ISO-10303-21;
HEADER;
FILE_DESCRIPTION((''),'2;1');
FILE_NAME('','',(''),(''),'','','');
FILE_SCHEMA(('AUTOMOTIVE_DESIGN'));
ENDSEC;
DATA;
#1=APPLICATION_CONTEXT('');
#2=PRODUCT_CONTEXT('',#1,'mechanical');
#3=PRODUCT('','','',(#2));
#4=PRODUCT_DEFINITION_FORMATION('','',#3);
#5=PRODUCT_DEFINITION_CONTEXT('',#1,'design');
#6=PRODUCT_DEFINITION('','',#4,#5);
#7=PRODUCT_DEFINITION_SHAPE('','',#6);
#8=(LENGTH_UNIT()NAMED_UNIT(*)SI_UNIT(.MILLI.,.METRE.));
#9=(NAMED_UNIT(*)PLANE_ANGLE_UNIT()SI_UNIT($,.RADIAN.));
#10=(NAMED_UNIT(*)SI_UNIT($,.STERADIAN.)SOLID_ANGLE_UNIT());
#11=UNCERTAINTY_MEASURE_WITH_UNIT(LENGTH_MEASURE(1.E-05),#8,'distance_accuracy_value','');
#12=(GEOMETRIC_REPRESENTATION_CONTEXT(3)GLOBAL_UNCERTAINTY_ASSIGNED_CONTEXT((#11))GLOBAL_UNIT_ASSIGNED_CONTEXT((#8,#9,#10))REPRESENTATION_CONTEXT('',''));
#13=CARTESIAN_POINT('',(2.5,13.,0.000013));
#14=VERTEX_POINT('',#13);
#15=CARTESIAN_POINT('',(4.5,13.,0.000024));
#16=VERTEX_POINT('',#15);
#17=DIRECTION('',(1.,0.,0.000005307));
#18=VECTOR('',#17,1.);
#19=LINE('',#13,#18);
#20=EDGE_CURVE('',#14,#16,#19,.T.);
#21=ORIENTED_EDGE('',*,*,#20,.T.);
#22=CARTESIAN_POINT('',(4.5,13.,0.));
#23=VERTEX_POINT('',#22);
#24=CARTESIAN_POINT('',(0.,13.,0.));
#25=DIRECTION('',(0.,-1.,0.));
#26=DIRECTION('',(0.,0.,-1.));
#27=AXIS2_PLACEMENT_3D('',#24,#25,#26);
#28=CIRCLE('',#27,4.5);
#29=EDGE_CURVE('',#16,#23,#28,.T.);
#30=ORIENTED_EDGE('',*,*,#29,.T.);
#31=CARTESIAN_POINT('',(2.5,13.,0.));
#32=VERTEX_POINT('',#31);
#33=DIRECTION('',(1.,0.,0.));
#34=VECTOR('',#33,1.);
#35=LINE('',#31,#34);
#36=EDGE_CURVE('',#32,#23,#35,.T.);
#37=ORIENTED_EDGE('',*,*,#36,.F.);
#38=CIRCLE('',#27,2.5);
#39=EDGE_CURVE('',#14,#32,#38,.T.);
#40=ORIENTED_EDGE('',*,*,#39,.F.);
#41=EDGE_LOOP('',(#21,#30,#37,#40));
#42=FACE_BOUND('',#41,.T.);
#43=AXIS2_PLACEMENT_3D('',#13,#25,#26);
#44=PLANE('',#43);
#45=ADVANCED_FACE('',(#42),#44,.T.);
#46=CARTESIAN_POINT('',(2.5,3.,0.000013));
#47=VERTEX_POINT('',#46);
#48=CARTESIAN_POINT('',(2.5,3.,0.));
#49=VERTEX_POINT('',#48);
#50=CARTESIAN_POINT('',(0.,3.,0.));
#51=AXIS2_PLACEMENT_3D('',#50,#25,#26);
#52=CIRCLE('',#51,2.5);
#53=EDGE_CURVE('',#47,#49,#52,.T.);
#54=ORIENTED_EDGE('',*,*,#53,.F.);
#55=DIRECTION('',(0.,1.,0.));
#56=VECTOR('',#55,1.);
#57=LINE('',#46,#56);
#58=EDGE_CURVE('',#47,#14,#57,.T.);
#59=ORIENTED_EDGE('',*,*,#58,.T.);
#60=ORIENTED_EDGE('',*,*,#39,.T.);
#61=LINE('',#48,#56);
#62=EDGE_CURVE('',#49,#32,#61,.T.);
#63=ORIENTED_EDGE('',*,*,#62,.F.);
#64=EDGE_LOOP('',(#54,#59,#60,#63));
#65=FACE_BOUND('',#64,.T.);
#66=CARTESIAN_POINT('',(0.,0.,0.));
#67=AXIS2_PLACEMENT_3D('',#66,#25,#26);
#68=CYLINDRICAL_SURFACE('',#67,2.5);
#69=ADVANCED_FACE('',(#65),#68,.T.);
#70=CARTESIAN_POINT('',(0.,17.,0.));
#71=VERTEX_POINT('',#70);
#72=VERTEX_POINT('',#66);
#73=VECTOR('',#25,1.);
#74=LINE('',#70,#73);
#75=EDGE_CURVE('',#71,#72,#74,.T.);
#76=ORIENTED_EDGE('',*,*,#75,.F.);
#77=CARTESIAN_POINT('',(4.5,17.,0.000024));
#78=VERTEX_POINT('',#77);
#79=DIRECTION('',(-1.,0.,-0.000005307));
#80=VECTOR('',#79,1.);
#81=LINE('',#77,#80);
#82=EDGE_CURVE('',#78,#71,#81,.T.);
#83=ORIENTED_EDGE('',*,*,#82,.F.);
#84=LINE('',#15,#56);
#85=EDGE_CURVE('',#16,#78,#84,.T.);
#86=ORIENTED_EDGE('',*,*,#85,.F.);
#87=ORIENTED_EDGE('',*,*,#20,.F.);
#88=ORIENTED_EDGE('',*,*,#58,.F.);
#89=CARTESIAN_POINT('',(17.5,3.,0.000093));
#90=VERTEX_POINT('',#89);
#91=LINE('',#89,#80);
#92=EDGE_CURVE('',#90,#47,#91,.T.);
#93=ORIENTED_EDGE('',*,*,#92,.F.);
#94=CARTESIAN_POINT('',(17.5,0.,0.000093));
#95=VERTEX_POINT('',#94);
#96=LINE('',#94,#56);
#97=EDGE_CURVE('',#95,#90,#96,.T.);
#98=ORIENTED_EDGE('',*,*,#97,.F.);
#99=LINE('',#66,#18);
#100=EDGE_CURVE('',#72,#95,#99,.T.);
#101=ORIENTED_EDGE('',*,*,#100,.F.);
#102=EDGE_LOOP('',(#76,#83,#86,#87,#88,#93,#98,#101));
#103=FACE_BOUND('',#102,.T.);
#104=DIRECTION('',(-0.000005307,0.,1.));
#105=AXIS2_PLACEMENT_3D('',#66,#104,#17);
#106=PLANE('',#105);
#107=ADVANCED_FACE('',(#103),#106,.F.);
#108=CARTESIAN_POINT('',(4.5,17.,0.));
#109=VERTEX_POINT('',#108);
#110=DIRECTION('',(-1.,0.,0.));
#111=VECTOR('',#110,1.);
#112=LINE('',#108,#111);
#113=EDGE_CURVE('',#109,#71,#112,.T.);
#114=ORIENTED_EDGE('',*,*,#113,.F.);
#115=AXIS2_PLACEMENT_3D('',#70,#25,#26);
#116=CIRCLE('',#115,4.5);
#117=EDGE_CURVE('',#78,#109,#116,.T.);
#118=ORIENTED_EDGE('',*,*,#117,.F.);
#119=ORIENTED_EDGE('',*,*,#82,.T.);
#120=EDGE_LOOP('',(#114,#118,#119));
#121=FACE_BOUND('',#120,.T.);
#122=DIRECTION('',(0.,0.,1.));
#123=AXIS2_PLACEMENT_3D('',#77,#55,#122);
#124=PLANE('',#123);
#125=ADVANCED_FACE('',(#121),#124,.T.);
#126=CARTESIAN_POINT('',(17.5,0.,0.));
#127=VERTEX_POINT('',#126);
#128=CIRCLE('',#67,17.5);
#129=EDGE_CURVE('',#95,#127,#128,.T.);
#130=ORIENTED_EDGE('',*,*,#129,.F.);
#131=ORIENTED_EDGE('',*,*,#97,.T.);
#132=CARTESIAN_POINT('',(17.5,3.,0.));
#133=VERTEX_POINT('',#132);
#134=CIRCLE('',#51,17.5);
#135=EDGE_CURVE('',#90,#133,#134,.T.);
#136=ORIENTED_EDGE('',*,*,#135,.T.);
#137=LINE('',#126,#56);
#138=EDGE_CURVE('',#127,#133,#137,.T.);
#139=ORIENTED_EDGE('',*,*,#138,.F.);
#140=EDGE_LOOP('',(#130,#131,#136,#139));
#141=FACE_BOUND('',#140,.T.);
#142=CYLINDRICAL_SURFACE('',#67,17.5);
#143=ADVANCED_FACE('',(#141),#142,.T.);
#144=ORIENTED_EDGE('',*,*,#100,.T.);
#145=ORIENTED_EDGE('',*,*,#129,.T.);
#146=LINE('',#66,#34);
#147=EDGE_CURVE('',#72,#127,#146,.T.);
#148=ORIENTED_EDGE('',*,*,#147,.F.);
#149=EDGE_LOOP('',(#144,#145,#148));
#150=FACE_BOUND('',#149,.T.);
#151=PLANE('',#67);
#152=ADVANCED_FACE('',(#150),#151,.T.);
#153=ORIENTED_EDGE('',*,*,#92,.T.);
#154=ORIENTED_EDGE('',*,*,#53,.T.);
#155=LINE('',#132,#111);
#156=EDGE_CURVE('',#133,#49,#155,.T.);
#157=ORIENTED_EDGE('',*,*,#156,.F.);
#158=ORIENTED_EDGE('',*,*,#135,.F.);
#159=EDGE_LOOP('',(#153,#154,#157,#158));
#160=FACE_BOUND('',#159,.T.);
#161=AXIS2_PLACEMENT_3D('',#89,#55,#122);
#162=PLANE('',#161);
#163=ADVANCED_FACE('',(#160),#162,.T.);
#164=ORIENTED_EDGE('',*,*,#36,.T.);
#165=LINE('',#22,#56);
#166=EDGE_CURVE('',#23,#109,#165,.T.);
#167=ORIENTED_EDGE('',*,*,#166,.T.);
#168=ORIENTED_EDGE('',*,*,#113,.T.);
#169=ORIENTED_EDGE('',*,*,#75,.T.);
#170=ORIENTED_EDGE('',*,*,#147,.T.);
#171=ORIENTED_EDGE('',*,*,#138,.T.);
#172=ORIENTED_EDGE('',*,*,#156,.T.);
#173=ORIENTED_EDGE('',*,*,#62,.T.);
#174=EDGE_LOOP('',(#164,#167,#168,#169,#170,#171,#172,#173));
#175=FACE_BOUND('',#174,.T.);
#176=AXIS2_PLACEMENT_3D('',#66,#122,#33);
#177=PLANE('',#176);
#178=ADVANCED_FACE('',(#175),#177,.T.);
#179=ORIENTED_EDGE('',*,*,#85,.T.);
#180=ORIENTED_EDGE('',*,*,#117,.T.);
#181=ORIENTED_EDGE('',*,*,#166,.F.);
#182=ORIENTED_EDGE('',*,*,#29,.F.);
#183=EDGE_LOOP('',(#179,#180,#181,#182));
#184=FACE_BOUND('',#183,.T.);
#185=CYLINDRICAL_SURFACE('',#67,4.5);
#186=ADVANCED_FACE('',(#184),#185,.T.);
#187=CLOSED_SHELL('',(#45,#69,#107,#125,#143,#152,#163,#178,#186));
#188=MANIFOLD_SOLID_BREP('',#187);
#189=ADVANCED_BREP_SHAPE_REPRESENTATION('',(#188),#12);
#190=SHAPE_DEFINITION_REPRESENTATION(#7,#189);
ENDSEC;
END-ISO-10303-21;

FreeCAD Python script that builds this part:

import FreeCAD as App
import Part
import Sketcher
from FreeCAD import Vector
Q = App.Units.Quantity

doc = App.newDocument("Part")
params = doc.addObject("Spreadsheet::Sheet", "Params")
for row, (alias, value) in enumerate([
    ("sketch1_width", "15 mm"),
    ("sketch1_width2", "2 mm"),
    ("sketch1_height", "3 mm"),
    ("sketch1_height2", "10 mm"),
    ("sketch1_height3", "4 mm"),
    ("revolution_angle", "359.999696 deg"),
], start=1):
    params.set(f"A{row}", alias)
    params.set(f"B{row}", "=" + value)
    params.setAlias(f"B{row}", alias)

body = doc.addObject("PartDesign::Body", "Body")

sketch1 = body.newObject("Sketcher::SketchObject", "Sketch")
sketch1.AttachmentSupport = (doc.getObject("XY_Plane"), [""])
sketch1.MapMode = "FlatFace"
sketch1.addGeometry([
    Part.LineSegment(Vector(0, 0, 0), Vector(17.5, 0, 0)),
    Part.LineSegment(Vector(17.5, 0, 0), Vector(17.5, 3, 0)),
    Part.LineSegment(Vector(17.5, 3, 0), Vector(2.5, 3, 0)),
    Part.LineSegment(Vector(2.5, 3, 0), Vector(2.5, 13, 0)),
    Part.LineSegment(Vector(2.5, 13, 0), Vector(4.5, 13, 0)),
    Part.LineSegment(Vector(4.5, 13, 0), Vector(4.5, 17, 0)),
    Part.LineSegment(Vector(4.5, 17, 0), Vector(0, 17, 0)),
    Part.LineSegment(Vector(0, 17, 0), Vector(0, 0, 0)),
], False)
sketch1.addConstraint([
    Sketcher.Constraint("Coincident", 0, 2, 1, 1),
    Sketcher.Constraint("Coincident", 1, 2, 2, 1),
    Sketcher.Constraint("Coincident", 2, 2, 3, 1),
    Sketcher.Constraint("Coincident", 3, 2, 4, 1),
    Sketcher.Constraint("Coincident", 4, 2, 5, 1),
    Sketcher.Constraint("Coincident", 5, 2, 6, 1),
    Sketcher.Constraint("Coincident", 6, 2, 7, 1),
    Sketcher.Constraint("Coincident", 7, 2, 0, 1),
    Sketcher.Constraint("Horizontal", 0),
    Sketcher.Constraint("Vertical", 1),
    Sketcher.Constraint("Horizontal", 2),
    Sketcher.Constraint("Vertical", 3),
    Sketcher.Constraint("Horizontal", 4),
    Sketcher.Constraint("Vertical", 5),
    Sketcher.Constraint("Horizontal", 6),
    Sketcher.Constraint("Vertical", 7),
    Sketcher.Constraint("Coincident", 7, 2, -1, 1),
    Sketcher.Constraint("DistanceX", 2, 2, 2, 1, Q("15 mm")),
    Sketcher.Constraint("DistanceX", 4, 1, 4, 2, Q("2 mm")),
    Sketcher.Constraint("DistanceY", 1, 1, 1, 2, Q("3 mm")),
    Sketcher.Constraint("DistanceY", 3, 1, 3, 2, Q("10 mm")),
    Sketcher.Constraint("DistanceY", 5, 1, 5, 2, Q("4 mm")),
    Sketcher.Constraint("DistanceX", 0, 1, 0, 2, Q("17.5 mm")),
])
sketch1.setExpression("Constraints[17]", "Params.sketch1_width")
sketch1.setExpression("Constraints[18]", "Params.sketch1_width2")
sketch1.setExpression("Constraints[19]", "Params.sketch1_height")
sketch1.setExpression("Constraints[20]", "Params.sketch1_height2")
sketch1.setExpression("Constraints[21]", "Params.sketch1_height3")
revolution = body.newObject("PartDesign::Revolution", "Revolution")
revolution.Profile = sketch1
revolution.ReferenceAxis = (sketch1, ["V_Axis"])
revolution.setExpression("Angle", "Params.revolution_angle")

doc.recompute()
